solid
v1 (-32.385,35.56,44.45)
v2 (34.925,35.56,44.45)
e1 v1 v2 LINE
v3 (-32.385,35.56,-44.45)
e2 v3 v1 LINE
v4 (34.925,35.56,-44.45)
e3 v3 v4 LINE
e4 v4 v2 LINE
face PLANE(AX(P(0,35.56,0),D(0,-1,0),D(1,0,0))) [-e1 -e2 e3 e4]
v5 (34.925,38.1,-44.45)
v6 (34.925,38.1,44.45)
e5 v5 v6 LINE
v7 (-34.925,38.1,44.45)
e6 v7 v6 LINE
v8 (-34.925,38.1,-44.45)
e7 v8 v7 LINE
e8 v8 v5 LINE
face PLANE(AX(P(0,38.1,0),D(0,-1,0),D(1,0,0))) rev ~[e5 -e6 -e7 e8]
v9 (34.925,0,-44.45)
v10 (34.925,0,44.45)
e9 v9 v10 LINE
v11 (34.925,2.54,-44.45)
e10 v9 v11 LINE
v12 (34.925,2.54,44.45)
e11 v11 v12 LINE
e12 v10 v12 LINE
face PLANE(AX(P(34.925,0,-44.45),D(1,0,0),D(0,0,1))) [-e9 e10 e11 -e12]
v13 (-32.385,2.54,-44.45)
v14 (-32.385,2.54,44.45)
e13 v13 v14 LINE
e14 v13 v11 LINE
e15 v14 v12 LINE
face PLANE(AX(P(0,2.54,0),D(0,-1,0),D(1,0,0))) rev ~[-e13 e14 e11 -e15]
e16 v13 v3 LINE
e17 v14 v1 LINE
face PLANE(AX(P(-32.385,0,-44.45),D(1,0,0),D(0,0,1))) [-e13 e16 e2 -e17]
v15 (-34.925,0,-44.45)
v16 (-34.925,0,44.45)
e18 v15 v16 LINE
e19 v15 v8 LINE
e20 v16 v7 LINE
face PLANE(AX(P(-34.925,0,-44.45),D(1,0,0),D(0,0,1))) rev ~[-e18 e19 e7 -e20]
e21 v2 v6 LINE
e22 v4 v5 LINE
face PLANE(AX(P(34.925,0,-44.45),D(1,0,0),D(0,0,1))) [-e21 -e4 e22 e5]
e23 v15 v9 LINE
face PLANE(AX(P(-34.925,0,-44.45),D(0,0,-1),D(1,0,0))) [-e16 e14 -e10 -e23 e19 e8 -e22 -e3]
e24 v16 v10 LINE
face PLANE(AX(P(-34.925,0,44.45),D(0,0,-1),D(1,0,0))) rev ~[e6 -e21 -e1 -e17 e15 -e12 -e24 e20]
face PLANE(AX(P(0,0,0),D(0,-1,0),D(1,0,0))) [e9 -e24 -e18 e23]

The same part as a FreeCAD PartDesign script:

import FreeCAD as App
import Part
import Sketcher

V = App.Vector
Q = App.Units.Quantity


def faces_at(feature, points):
    """Names of the faces that lie closest to the given points."""
    faces = feature.Shape.Faces
    near = lambda p: min(range(len(faces)), key=lambda i: faces[i].distToShape(Part.Vertex(*p))[0])
    return sorted({f"Face{near(p) + 1}" for p in points})


def add_polygon(sketch, points):
    """Adds a closed chain of lines whose ends are joined by coincident constraints."""
    first, n = sketch.GeometryCount, len(points)
    for a, b in zip(points, points[1:] + points[:1]):
        sketch.addGeometry(Part.LineSegment(App.Vector(*a, 0), App.Vector(*b, 0)), False)
    for i in range(n):
        sketch.addConstraint(Sketcher.Constraint("Coincident", first + i, 2, first + (i + 1) % n, 1))

doc = App.newDocument("Part")
body = doc.addObject("PartDesign::Body", "Body")

sketch1 = body.newObject("Sketcher::SketchObject", "Sketch")
sketch1.AttachmentSupport = (doc.getObject("XZ_Plane"), [""])
sketch1.MapMode = "FlatFace"
add_polygon(sketch1, [(-35, 44), (-35, -44), (35, -44), (35, 44)])
sketch1.addConstraint([
    Sketcher.Constraint("Vertical", 0),
    Sketcher.Constraint("Horizontal", 1),
    Sketcher.Constraint("Vertical", 2),
    Sketcher.Constraint("Horizontal", 3),
    Sketcher.Constraint("Symmetric", 0, 2, 2, 2, -1, 1),
    Sketcher.Constraint("DistanceY", 0, 2, 0, 1, Q("3.5 in")),
    Sketcher.Constraint("DistanceX", 1, 1, 1, 2, Q("2.75 in")),
])
pad1 = body.newObject("PartDesign::Pad", "Pad")
pad1.Profile = sketch1
pad1.Length = Q("1.5 in")
pad1.Reversed = True
doc.recompute()

thickness = body.newObject("PartDesign::Thickness", "Thickness")
thickness.Base = (pad1, faces_at(pad1, [(0, 19.05, 44.45), (34.925, 19.05, 0), (0, 19.05, -44.45)]))
thickness.Value = Q("0.1 in")
thickness.Reversed = True
thickness.Join = "Arc"

doc.recompute()
